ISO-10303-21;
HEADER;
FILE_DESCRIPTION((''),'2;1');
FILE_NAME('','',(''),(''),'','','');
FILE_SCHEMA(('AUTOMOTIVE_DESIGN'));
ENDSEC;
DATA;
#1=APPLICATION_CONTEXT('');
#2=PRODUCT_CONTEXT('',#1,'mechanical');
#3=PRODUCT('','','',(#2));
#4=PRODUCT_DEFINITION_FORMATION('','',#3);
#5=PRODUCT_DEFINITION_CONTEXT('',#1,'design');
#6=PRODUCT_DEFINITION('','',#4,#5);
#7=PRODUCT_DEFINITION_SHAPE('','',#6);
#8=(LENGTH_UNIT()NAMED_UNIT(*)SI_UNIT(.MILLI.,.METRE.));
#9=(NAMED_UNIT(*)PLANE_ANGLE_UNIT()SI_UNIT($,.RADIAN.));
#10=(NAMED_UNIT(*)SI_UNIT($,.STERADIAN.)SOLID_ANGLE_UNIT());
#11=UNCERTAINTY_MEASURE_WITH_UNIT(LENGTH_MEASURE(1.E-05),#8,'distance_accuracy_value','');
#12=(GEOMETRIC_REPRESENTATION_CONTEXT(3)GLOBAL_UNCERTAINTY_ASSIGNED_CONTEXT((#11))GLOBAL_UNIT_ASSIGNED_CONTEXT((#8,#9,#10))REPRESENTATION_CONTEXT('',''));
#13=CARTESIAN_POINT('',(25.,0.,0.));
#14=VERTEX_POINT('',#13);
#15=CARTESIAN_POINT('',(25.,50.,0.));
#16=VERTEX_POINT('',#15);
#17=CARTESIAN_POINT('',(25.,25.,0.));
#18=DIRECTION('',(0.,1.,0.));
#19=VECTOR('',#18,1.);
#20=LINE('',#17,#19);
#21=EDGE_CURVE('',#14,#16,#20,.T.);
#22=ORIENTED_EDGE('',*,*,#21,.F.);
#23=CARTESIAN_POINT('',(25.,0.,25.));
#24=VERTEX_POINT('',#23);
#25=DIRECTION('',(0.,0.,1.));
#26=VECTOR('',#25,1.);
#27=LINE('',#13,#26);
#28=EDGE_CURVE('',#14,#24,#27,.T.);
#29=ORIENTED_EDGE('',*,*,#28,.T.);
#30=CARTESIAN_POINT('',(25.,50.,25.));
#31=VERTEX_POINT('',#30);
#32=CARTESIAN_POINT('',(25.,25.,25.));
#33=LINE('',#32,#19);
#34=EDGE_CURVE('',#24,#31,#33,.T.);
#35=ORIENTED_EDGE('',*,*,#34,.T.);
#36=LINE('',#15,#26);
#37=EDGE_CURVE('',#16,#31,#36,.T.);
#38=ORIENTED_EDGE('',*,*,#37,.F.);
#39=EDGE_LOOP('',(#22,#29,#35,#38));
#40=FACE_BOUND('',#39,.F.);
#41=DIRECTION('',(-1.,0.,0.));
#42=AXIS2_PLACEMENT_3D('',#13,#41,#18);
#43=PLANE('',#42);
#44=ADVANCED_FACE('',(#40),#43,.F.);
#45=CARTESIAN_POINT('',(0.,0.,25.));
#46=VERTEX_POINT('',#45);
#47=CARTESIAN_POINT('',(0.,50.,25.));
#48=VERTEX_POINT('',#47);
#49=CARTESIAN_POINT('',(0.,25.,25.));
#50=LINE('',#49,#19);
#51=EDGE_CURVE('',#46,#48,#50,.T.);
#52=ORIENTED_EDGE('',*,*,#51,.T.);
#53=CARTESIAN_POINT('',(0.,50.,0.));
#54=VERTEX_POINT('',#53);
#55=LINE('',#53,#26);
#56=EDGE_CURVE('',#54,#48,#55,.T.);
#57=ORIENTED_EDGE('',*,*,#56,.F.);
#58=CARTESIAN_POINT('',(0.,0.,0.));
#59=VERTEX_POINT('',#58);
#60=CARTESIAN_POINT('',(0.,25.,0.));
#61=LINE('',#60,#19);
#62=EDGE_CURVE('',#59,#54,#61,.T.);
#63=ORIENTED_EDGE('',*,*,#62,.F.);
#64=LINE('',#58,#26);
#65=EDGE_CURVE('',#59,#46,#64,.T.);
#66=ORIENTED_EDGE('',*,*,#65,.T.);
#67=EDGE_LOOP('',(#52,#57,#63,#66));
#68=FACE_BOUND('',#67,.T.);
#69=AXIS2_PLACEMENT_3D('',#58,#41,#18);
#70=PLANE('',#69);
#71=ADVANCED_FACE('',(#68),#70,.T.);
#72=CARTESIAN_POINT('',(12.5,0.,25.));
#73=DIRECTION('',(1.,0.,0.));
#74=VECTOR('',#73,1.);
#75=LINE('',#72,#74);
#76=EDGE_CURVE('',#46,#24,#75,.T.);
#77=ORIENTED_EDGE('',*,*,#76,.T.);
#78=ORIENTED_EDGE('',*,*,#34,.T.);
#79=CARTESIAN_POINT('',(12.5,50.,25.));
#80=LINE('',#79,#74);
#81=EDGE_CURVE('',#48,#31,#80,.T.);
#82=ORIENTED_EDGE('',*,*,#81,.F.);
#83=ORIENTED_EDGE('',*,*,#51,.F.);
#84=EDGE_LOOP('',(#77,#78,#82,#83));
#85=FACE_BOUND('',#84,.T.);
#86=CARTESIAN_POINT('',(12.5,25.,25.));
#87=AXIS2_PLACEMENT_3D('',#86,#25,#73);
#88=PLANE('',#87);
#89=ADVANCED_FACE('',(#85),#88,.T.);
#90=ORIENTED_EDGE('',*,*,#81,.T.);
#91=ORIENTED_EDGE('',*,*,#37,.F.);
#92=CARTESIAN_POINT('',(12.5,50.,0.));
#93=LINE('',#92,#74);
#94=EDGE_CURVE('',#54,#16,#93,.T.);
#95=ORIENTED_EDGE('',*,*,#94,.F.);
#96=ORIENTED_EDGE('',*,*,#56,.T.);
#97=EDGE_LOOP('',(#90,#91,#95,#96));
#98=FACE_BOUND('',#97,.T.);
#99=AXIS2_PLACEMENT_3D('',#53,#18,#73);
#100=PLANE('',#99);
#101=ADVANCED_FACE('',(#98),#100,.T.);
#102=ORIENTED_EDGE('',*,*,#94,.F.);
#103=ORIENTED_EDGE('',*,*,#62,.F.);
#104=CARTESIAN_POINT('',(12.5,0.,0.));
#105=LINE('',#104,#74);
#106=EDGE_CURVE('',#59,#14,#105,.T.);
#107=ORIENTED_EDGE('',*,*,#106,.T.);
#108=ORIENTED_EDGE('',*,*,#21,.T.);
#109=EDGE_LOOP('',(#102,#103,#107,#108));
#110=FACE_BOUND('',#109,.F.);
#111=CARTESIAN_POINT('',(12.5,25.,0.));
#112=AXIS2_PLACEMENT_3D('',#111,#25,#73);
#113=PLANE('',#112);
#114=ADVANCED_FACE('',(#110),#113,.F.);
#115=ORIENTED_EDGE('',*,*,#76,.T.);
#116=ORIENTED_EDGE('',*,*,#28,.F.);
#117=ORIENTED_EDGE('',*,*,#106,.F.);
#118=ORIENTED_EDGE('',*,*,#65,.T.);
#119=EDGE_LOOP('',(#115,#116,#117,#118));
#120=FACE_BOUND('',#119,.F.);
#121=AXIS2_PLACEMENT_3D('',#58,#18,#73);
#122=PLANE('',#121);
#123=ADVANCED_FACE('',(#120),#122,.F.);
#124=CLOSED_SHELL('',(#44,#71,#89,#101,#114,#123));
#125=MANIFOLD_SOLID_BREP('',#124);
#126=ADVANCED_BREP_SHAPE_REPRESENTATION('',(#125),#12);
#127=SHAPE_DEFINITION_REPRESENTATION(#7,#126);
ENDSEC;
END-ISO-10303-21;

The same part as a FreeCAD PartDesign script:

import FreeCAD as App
import Part
import Sketcher

V = App.Vector
Q = App.Units.Quantity

doc = App.newDocument("Part")
body = doc.addObject("PartDesign::Body", "Body")

sketch1 = doc.addObject("Sketcher::SketchObject", "Sketch")
body.addObject(sketch1)
sketch1.AttachmentSupport = (doc.XY_Plane, [""])
sketch1.MapMode = "FlatFace"
sketch1.addGeometry(Part.LineSegment(V(0, 50, 0), V(0, 0, 0)), False)
sketch1.addGeometry(Part.LineSegment(V(0, 0, 0), V(25, 0, 0)), False)
sketch1.addGeometry(Part.LineSegment(V(25, 0, 0), V(25, 50, 0)), False)
sketch1.addGeometry(Part.LineSegment(V(25, 50, 0), V(0, 50, 0)), False)
sketch1.addConstraint(Sketcher.Constraint("Coincident", 0, 2, 1, 1))
sketch1.addConstraint(Sketcher.Constraint("Coincident", 1, 2, 2, 1))
sketch1.addConstraint(Sketcher.Constraint("Coincident", 2, 2, 3, 1))
sketch1.addConstraint(Sketcher.Constraint("Coincident", 3, 2, 0, 1))
sketch1.addConstraint(Sketcher.Constraint("Vertical", 0))
sketch1.addConstraint(Sketcher.Constraint("Horizontal", 1))
sketch1.addConstraint(Sketcher.Constraint("Vertical", 2))
sketch1.addConstraint(Sketcher.Constraint("Horizontal", 3))
sketch1.addConstraint(Sketcher.Constraint("Coincident", 0, 2, -1, 1))
sketch1.addConstraint(Sketcher.Constraint("DistanceX", 1, 1, 1, 2, Q("25 mm")))
sketch1.addConstraint(Sketcher.Constraint("DistanceY", 0, 2, 0, 1, Q("50 mm")))
pad1 = doc.addObject("PartDesign::Pad", "Pad")
body.addObject(pad1)
pad1.Profile = sketch1
pad1.Length = 25

doc.recompute()
